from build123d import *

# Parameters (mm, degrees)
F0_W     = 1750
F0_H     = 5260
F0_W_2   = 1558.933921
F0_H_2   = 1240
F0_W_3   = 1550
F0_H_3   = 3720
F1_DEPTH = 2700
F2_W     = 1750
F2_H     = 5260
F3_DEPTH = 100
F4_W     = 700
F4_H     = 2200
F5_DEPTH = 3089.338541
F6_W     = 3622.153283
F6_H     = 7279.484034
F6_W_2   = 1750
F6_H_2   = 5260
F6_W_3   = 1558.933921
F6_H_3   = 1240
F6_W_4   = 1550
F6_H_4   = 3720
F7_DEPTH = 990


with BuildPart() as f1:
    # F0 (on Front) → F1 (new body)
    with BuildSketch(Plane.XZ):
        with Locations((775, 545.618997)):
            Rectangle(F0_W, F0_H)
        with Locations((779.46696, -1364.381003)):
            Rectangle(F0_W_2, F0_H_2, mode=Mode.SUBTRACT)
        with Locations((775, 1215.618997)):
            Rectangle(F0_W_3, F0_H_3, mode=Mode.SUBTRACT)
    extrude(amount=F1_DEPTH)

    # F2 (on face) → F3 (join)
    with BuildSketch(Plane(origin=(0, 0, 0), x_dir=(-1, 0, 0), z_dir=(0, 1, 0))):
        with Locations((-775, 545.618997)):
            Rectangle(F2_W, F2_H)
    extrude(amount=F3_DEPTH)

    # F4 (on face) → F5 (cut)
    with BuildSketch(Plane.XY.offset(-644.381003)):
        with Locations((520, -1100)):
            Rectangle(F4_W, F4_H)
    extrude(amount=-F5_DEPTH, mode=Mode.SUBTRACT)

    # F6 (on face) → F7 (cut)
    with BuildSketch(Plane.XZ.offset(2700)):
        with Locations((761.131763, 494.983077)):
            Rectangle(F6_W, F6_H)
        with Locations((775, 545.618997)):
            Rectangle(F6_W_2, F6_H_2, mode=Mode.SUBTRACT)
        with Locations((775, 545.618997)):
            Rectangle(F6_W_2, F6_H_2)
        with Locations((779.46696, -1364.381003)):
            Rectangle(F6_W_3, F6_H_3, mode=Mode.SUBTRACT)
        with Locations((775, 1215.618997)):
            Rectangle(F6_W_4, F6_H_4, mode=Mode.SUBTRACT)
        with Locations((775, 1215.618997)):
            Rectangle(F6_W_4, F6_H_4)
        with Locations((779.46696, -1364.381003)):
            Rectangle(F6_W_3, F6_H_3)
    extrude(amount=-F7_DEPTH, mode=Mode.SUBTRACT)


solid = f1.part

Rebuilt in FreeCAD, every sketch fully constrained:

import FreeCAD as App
import Part
import Sketcher
from FreeCAD import Vector


def add_polygon(sketch, points):
    """Adds a closed chain of lines whose ends are joined by coincident constraints."""
    first, n = sketch.GeometryCount, len(points)
    for a, b in zip(points, points[1:] + points[:1]):
        sketch.addGeometry(Part.LineSegment(App.Vector(*a, 0), App.Vector(*b, 0)), False)
    for i in range(n):
        sketch.addConstraint(Sketcher.Constraint("Coincident", first + i, 2, first + (i + 1) % n, 1))

doc = App.newDocument("Part")
body = doc.addObject("PartDesign::Body", "Body")

# Sketch on XZ plane
sketch1 = doc.addObject("Sketcher::SketchObject", "Sketch")
body.addObject(sketch1)
sketch1.AttachmentSupport = (doc.XZ_Plane, [""])
sketch1.MapMode = "FlatFace"
add_polygon(sketch1, [(-100, 3176), (-100, -2084), (1650, -2084), (1650, 3176)])  # lines 0-3
add_polygon(sketch1, [(1559, -1984), (0, -1984), (0, -744), (1559, -744)])  # lines 4-7
add_polygon(sketch1, [(1550, -644), (0, -644), (0, 3076), (1550, 3076)])  # lines 8-11
sketch1.addConstraint([
    Sketcher.Constraint("Vertical", 0),
    Sketcher.Constraint("Horizontal", 1),
    Sketcher.Constraint("Vertical", 2),
    Sketcher.Constraint("Horizontal", 3),
    Sketcher.Constraint("Horizontal", 4),
    Sketcher.Constraint("Vertical", 5),
    Sketcher.Constraint("Horizontal", 6),
    Sketcher.Constraint("Vertical", 7),
    Sketcher.Constraint("Horizontal", 8),
    Sketcher.Constraint("Vertical", 9),
    Sketcher.Constraint("Horizontal", 10),
    Sketcher.Constraint("Vertical", 11),
    Sketcher.Constraint("PointOnObject", 4, 2, -2),
    Sketcher.Constraint("PointOnObject", 8, 2, -2),
    Sketcher.Constraint("DistanceX", 1, 1, 1, 2, 1750.0),
    Sketcher.Constraint("DistanceX", 8, 2, 8, 1, 1550.0),
    Sketcher.Constraint("DistanceY", 0, 2, 0, 1, 5260.0),
    Sketcher.Constraint("DistanceY", 5, 1, 5, 2, 1240.0),
    Sketcher.Constraint("DistanceY", 9, 1, 9, 2, 3720.0),
    Sketcher.Constraint("DistanceX", 0, 2, -1, 1, 100.0),
    Sketcher.Constraint("DistanceY", 0, 2, 4, 2, 100.0),
    Sketcher.Constraint("DistanceY", 5, 2, 8, 2, 100.0),
    Sketcher.Constraint("DistanceX", 4, 2, 4, 1, 1558.933921),
    Sketcher.Constraint("DistanceY", 0, 2, -1, 1, 2084.381003),
])
pad1 = doc.addObject("PartDesign::Pad", "Pad")
body.addObject(pad1)
pad1.Profile = sketch1
pad1.Length = 2700

# Sketch on XZ plane
sketch2 = doc.addObject("Sketcher::SketchObject", "Sketch001")
body.addObject(sketch2)
sketch2.AttachmentSupport = (doc.XZ_Plane, [""])
sketch2.MapMode = "FlatFace"
add_polygon(sketch2, [(1650, 3176), (1650, -2084), (-100, -2084), (-100, 3176)])  # lines 0-3
sketch2.addConstraint([
    Sketcher.Constraint("Vertical", 0),
    Sketcher.Constraint("Horizontal", 1),
    Sketcher.Constraint("Vertical", 2),
    Sketcher.Constraint("Horizontal", 3),
    Sketcher.Constraint("DistanceX", 1, 2, 1, 1, 1750.0),
    Sketcher.Constraint("DistanceY", 0, 2, 0, 1, 5260.0),
    Sketcher.Constraint("DistanceX", -1, 1, 0, 2, 1650.0),
    Sketcher.Constraint("DistanceY", 0, 2, -1, 1, 2084.381003),
])
pad2 = doc.addObject("PartDesign::Pad", "Pad001")
body.addObject(pad2)
pad2.Profile = sketch2
pad2.Length = 100
pad2.Reversed = True

# Sketch on XY plane
sketch3 = doc.addObject("Sketcher::SketchObject", "Sketch002")
body.addObject(sketch3)
sketch3.AttachmentSupport = (doc.XY_Plane, [""])
sketch3.MapMode = "FlatFace"
sketch3.AttachmentOffset = App.Placement(Vector(0, 0, -644.381003), App.Rotation())
add_polygon(sketch3, [(170, 0), (170, -2200), (870, -2200), (870, 0)])  # lines 0-3
sketch3.addConstraint([
    Sketcher.Constraint("Vertical", 0),
    Sketcher.Constraint("Horizontal", 1),
    Sketcher.Constraint("Vertical", 2),
    Sketcher.Constraint("Horizontal", 3),
    Sketcher.Constraint("PointOnObject", 2, 2, -1),
    Sketcher.Constraint("DistanceX", 1, 1, 1, 2, 700.0),
    Sketcher.Constraint("DistanceY", 0, 2, 0, 1, 2200.0),
    Sketcher.Constraint("DistanceX", -1, 1, 0, 2, 170.0),
])
pocket1 = doc.addObject("PartDesign::Pocket", "Pocket")
body.addObject(pocket1)
pocket1.Profile = sketch3
pocket1.Length = 3089.338541

# Sketch on XZ plane
sketch4 = doc.addObject("Sketcher::SketchObject", "Sketch003")
body.addObject(sketch4)
sketch4.AttachmentSupport = (doc.XZ_Plane, [""])
sketch4.MapMode = "FlatFace"
sketch4.AttachmentOffset = App.Placement(Vector(0, 0, 2700), App.Rotation())
add_polygon(sketch4, [(-1050, 4135), (-1050, -3145), (2572, -3145), (2572, 4135)])  # lines 0-3
sketch4.addConstraint([
    Sketcher.Constraint("Vertical", 0),
    Sketcher.Constraint("Horizontal", 1),
    Sketcher.Constraint("Vertical", 2),
    Sketcher.Constraint("Horizontal", 3),
    Sketcher.Constraint("DistanceX", 1, 1, 1, 2, 3622.153283),
    Sketcher.Constraint("DistanceY", 0, 2, 0, 1, 7279.484034),
    Sketcher.Constraint("DistanceX", 0, 2, -1, 1, 1049.944878),
    Sketcher.Constraint("DistanceY", 0, 2, -1, 1, 3144.75894),
])
pocket2 = doc.addObject("PartDesign::Pocket", "Pocket001")
body.addObject(pocket2)
pocket2.Profile = sketch4
pocket2.Length = 990

doc.recompute()
